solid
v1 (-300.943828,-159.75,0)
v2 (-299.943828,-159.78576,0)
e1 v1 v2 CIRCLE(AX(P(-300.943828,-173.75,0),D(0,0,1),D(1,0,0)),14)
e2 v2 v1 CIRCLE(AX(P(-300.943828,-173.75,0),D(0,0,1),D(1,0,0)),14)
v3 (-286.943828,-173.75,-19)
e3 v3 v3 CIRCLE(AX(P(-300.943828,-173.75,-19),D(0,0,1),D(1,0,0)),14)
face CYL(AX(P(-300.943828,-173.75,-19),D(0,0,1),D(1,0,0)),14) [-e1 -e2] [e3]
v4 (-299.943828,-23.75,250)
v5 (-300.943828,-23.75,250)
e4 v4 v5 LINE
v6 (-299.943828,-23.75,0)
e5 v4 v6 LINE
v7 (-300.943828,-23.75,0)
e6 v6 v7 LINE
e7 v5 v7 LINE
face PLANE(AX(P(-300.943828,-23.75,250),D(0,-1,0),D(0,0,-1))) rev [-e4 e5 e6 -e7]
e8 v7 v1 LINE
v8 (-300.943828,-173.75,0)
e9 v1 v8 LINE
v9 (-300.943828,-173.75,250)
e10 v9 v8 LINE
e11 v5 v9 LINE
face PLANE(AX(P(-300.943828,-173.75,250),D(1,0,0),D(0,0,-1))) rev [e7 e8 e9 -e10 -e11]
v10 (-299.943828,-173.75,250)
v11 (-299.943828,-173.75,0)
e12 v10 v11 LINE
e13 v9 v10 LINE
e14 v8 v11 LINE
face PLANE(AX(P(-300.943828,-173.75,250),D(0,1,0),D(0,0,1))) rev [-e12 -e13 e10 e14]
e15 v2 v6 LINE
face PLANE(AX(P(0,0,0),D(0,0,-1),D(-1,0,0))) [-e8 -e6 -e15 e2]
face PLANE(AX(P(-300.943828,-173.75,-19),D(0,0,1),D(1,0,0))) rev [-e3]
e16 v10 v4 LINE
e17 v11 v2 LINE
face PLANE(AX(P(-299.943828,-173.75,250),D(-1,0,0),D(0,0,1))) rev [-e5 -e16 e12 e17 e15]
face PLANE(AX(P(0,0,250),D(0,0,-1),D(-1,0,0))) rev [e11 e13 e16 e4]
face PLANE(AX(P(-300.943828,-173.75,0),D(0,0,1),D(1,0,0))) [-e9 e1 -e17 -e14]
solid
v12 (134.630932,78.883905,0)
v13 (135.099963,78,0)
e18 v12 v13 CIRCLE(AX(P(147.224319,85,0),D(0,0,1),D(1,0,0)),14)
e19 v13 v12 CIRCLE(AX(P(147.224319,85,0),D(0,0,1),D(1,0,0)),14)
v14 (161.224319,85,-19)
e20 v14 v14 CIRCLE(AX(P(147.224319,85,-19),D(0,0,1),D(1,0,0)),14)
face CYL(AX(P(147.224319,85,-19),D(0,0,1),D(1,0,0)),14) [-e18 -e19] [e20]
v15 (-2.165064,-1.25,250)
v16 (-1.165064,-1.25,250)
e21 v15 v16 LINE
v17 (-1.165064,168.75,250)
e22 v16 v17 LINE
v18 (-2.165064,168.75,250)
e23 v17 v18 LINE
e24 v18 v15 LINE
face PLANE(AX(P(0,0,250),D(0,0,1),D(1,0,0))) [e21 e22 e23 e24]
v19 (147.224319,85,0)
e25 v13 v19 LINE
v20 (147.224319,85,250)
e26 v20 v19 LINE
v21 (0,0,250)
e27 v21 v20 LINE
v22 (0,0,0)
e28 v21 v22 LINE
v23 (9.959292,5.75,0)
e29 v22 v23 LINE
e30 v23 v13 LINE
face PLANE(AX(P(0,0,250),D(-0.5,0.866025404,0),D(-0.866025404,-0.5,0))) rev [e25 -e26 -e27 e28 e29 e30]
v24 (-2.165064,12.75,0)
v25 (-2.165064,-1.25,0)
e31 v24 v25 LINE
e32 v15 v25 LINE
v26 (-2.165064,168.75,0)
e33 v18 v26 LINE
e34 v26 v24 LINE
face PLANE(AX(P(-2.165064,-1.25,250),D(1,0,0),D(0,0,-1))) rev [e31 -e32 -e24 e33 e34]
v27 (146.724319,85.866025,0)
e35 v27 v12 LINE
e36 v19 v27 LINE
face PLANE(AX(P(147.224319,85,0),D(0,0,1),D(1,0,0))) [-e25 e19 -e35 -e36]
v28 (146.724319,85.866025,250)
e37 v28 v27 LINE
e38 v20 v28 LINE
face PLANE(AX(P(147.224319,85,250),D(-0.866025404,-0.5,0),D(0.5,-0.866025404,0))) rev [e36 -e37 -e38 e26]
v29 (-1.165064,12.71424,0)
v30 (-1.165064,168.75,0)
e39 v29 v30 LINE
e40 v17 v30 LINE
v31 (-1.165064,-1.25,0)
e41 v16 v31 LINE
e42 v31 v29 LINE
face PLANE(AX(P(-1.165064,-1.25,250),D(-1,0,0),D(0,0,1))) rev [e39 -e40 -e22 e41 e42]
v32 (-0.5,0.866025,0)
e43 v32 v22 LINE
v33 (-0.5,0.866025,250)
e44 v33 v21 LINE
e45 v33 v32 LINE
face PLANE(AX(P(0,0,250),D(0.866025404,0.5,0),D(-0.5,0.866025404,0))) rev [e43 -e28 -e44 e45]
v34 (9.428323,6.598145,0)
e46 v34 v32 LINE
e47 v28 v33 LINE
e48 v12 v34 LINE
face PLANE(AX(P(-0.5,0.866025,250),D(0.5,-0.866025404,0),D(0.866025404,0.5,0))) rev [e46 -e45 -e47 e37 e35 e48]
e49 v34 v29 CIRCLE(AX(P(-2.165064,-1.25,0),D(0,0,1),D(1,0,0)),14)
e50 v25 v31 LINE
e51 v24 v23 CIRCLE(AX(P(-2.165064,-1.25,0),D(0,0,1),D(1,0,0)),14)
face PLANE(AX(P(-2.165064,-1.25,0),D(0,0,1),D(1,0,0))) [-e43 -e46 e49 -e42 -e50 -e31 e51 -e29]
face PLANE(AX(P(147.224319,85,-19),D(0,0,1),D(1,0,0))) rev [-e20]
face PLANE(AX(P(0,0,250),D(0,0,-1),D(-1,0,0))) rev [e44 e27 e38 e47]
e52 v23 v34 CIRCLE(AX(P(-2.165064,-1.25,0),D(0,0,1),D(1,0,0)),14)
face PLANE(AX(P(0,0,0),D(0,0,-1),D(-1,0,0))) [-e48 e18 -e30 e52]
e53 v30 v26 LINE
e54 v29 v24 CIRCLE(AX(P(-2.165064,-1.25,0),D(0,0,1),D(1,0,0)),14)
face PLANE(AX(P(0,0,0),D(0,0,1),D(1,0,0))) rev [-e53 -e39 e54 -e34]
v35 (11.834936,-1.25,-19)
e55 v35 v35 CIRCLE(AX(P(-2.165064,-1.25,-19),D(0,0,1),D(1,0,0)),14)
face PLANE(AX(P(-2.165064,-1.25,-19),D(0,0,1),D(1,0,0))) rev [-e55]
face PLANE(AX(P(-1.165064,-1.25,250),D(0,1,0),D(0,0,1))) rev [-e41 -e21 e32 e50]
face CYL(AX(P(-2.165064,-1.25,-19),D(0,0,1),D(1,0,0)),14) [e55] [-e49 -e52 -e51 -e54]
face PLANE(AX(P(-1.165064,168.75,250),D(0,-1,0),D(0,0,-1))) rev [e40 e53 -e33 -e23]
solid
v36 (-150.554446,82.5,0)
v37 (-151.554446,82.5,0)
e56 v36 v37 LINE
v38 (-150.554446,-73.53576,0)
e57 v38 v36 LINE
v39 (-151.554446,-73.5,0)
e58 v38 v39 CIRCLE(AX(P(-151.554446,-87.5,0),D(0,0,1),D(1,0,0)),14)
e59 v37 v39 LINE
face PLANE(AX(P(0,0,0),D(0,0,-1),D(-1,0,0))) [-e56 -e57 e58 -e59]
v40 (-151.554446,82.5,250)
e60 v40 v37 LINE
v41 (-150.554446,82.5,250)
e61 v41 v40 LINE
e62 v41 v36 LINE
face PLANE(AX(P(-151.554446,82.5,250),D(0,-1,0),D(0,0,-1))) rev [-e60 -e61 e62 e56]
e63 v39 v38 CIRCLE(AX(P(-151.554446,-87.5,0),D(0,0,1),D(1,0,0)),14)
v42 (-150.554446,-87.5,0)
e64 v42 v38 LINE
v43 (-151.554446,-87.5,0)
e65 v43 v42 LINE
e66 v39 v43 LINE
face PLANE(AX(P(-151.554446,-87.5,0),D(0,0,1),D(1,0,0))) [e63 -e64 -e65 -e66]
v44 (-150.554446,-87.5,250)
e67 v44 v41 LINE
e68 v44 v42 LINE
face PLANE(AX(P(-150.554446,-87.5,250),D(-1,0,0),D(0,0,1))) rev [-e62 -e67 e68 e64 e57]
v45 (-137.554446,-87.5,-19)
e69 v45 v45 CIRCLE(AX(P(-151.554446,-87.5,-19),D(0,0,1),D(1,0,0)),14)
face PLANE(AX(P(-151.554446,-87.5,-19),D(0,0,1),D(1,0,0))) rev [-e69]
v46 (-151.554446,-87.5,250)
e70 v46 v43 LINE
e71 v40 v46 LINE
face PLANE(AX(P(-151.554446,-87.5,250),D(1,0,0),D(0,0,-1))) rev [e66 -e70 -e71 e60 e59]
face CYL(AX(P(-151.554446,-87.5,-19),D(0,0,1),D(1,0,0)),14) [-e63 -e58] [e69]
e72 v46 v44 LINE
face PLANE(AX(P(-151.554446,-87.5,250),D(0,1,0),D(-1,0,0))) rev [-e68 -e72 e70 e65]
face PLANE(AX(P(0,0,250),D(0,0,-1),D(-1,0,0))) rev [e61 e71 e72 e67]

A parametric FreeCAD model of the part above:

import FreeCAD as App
import Part
import Sketcher
from FreeCAD import Vector
Q = App.Units.Quantity

doc = App.newDocument("Part")
body = doc.addObject("PartDesign::Body", "Body")

# Sketch on XY plane
sketch1 = body.newObject("Sketcher::SketchObject", "Sketch")
sketch1.AttachmentSupport = (doc.getObject("XY_Plane"), [""])
sketch1.MapMode = "FlatFace"
sketch1.addGeometry([
    Part.LineSegment(Vector(0, 0, 0), Vector(147.2, 85, 0)),
    Part.LineSegment(Vector(147.2, 85, 0), Vector(146.7, 85.9, 0)),
    Part.LineSegment(Vector(146.7, 85.9, 0), Vector(-0.5, 0.9, 0)),
    Part.LineSegment(Vector(-0.5, 0.9, 0), Vector(0, 0, 0)),
], False)
sketch1.addConstraint([
    Sketcher.Constraint("Coincident", 0, 2, 1, 1),
    Sketcher.Constraint("Coincident", 1, 2, 2, 1),
    Sketcher.Constraint("Coincident", 2, 2, 3, 1),
    Sketcher.Constraint("Coincident", 3, 2, 0, 1),
    Sketcher.Constraint("Coincident", 3, 2, -1, 1),
    Sketcher.Constraint("Perpendicular", 0, 1),
    Sketcher.Constraint("Perpendicular", 1, 2),
    Sketcher.Constraint("Perpendicular", 2, 3),
    Sketcher.Constraint("Angle", 0, Q("30 deg")),
    Sketcher.Constraint("Distance", 0, Q("170 mm")),
    Sketcher.Constraint("Distance", 1, Q("1 mm")),
])
pad1 = body.newObject("PartDesign::Pad", "Pad")
pad1.Profile = sketch1
pad1.Length = 250
body2 = doc.addObject("PartDesign::Body", "Body001")

# Sketch on XY plane
sketch2 = body2.newObject("Sketcher::SketchObject", "Sketch001")
sketch2.AttachmentSupport = (doc.getObject("XY_Plane001"), [""])
sketch2.MapMode = "FlatFace"
sketch2.addGeometry([
    Part.LineSegment(Vector(-2.2, 168.8, 0), Vector(-2.2, -1.2, 0)),
    Part.LineSegment(Vector(-2.2, -1.2, 0), Vector(-1.2, -1.2, 0)),
    Part.LineSegment(Vector(-1.2, -1.2, 0), Vector(-1.2, 168.8, 0)),
    Part.LineSegment(Vector(-1.2, 168.8, 0), Vector(-2.2, 168.8, 0)),
], False)
sketch2.addConstraint([
    Sketcher.Constraint("Coincident", 0, 2, 1, 1),
    Sketcher.Constraint("Coincident", 1, 2, 2, 1),
    Sketcher.Constraint("Coincident", 2, 2, 3, 1),
    Sketcher.Constraint("Coincident", 3, 2, 0, 1),
    Sketcher.Constraint("Vertical", 0),
    Sketcher.Constraint("Horizontal", 1),
    Sketcher.Constraint("Vertical", 2),
    Sketcher.Constraint("Horizontal", 3),
    Sketcher.Constraint("DistanceX", 1, 1, 1, 2, Q("1 mm")),
    Sketcher.Constraint("DistanceY", 0, 2, 0, 1, Q("170 mm")),
    Sketcher.Constraint("DistanceY", 0, 2, -1, 1, Q("1.25 mm")),
    Sketcher.Constraint("DistanceX", 0, 2, -1, 1, Q("2.165064 mm")),
])
pad2 = body2.newObject("PartDesign::Pad", "Pad001")
pad2.Profile = sketch2
pad2.Length = 250
body3 = doc.addObject("PartDesign::Body", "Body002")

# Sketch on XY plane
sketch3 = body3.newObject("Sketcher::SketchObject", "Sketch002")
sketch3.AttachmentSupport = (doc.getObject("XY_Plane002"), [""])
sketch3.MapMode = "FlatFace"
sketch3.addGeometry([
    Part.LineSegment(Vector(-151.6, 82.5, 0), Vector(-151.6, -87.5, 0)),
    Part.LineSegment(Vector(-151.6, -87.5, 0), Vector(-150.6, -87.5, 0)),
    Part.LineSegment(Vector(-150.6, -87.5, 0), Vector(-150.6, 82.5, 0)),
    Part.LineSegment(Vector(-150.6, 82.5, 0), Vector(-151.6, 82.5, 0)),
], False)
sketch3.addConstraint([
    Sketcher.Constraint("Coincident", 0, 2, 1, 1),
    Sketcher.Constraint("Coincident", 1, 2, 2, 1),
    Sketcher.Constraint("Coincident", 2, 2, 3, 1),
    Sketcher.Constraint("Coincident", 3, 2, 0, 1),
    Sketcher.Constraint("Vertical", 0),
    Sketcher.Constraint("Horizontal", 1),
    Sketcher.Constraint("Vertical", 2),
    Sketcher.Constraint("Horizontal", 3),
    Sketcher.Constraint("DistanceX", 1, 1, 1, 2, Q("1 mm")),
    Sketcher.Constraint("DistanceY", 0, 2, 0, 1, Q("170 mm")),
    Sketcher.Constraint("DistanceY", 0, 2, -1, 1, Q("87.5 mm")),
    Sketcher.Constraint("DistanceX", 0, 2, -1, 1, Q("151.554446 mm")),
])
pad3 = body3.newObject("PartDesign::Pad", "Pad002")
pad3.Profile = sketch3
pad3.Length = 250
body4 = doc.addObject("PartDesign::Body", "Body003")

# Sketch on XY plane
sketch4 = body4.newObject("Sketcher::SketchObject", "Sketch003")
sketch4.AttachmentSupport = (doc.getObject("XY_Plane003"), [""])
sketch4.MapMode = "FlatFace"
sketch4.addGeometry([
    Part.LineSegment(Vector(-300.9, -23.8, 0), Vector(-300.9, -173.8, 0)),
    Part.LineSegment(Vector(-300.9, -173.8, 0), Vector(-299.9, -173.8, 0)),
    Part.LineSegment(Vector(-299.9, -173.8, 0), Vector(-299.9, -23.8, 0)),
    Part.LineSegment(Vector(-299.9, -23.8, 0), Vector(-300.9, -23.8, 0)),
], False)
sketch4.addConstraint([
    Sketcher.Constraint("Coincident", 0, 2, 1, 1),
    Sketcher.Constraint("Coincident", 1, 2, 2, 1),
    Sketcher.Constraint("Coincident", 2, 2, 3, 1),
    Sketcher.Constraint("Coincident", 3, 2, 0, 1),
    Sketcher.Constraint("Vertical", 0),
    Sketcher.Constraint("Horizontal", 1),
    Sketcher.Constraint("Vertical", 2),
    Sketcher.Constraint("Horizontal", 3),
    Sketcher.Constraint("DistanceX", 1, 1, 1, 2, Q("1 mm")),
    Sketcher.Constraint("DistanceY", 0, 2, 0, 1, Q("150 mm")),
    Sketcher.Constraint("DistanceY", 0, 2, -1, 1, Q("173.75 mm")),
    Sketcher.Constraint("DistanceX", 0, 2, -1, 1, Q("300.943828 mm")),
])
pad4 = body4.newObject("PartDesign::Pad", "Pad003")
pad4.Profile = sketch4
pad4.Length = 250
body.AllowCompound = True
doc.recompute()

boolean = body.newObject("PartDesign::Boolean", "Boolean")
boolean.Type = "Fuse"
boolean.addObjects([body2])
doc.recompute()

boolean2 = body.newObject("PartDesign::Boolean", "Boolean001")
boolean2.Type = "Fuse"
boolean2.addObjects([body3])
doc.recompute()

boolean3 = body.newObject("PartDesign::Boolean", "Boolean002")
boolean3.Type = "Fuse"
boolean3.addObjects([body4])

# Sketch on XY plane
sketch5 = body.newObject("Sketcher::SketchObject", "Sketch004")
sketch5.AttachmentSupport = (doc.getObject("XY_Plane"), [""])
sketch5.MapMode = "FlatFace"
sketch5.addGeometry([
    Part.Circle(Vector(147, 85, 0), Vector(0, 0, 1), 14),
    Part.Circle(Vector(-2, -1, 0), Vector(0, 0, 1), 14),
    Part.Circle(Vector(-152, -88, 0), Vector(0, 0, 1), 14),
    Part.Circle(Vector(-301, -174, 0), Vector(0, 0, 1), 14),
], False)
sketch5.addConstraint([
    Sketcher.Constraint("Equal", 0, 1),
    Sketcher.Constraint("Equal", 1, 2),
    Sketcher.Constraint("Equal", 2, 3),
    Sketcher.Constraint("Diameter", 0, Q("28 mm")),
    Sketcher.Constraint("DistanceY", -1, 1, 0, 3, Q("85 mm")),
    Sketcher.Constraint("DistanceY", 2, 3, -1, 1, Q("87.5 mm")),
    Sketcher.Constraint("DistanceY", 3, 3, 1, 3, Q("172.5 mm")),
    Sketcher.Constraint("DistanceY", 1, 3, -1, 1, Q("1.25 mm")),
    Sketcher.Constraint("DistanceX", -1, 1, 0, 3, Q("147.224319 mm")),
    Sketcher.Constraint("DistanceX", 1, 3, -1, 1, Q("2.165064 mm")),
    Sketcher.Constraint("DistanceX", 2, 3, -1, 1, Q("151.554446 mm")),
    Sketcher.Constraint("DistanceX", 3, 3, -1, 1, Q("300.943828 mm")),
])
pad5 = body.newObject("PartDesign::Pad", "Pad004")
pad5.Profile = sketch5
pad5.Length = 19
pad5.Reversed = True

doc.recompute()
